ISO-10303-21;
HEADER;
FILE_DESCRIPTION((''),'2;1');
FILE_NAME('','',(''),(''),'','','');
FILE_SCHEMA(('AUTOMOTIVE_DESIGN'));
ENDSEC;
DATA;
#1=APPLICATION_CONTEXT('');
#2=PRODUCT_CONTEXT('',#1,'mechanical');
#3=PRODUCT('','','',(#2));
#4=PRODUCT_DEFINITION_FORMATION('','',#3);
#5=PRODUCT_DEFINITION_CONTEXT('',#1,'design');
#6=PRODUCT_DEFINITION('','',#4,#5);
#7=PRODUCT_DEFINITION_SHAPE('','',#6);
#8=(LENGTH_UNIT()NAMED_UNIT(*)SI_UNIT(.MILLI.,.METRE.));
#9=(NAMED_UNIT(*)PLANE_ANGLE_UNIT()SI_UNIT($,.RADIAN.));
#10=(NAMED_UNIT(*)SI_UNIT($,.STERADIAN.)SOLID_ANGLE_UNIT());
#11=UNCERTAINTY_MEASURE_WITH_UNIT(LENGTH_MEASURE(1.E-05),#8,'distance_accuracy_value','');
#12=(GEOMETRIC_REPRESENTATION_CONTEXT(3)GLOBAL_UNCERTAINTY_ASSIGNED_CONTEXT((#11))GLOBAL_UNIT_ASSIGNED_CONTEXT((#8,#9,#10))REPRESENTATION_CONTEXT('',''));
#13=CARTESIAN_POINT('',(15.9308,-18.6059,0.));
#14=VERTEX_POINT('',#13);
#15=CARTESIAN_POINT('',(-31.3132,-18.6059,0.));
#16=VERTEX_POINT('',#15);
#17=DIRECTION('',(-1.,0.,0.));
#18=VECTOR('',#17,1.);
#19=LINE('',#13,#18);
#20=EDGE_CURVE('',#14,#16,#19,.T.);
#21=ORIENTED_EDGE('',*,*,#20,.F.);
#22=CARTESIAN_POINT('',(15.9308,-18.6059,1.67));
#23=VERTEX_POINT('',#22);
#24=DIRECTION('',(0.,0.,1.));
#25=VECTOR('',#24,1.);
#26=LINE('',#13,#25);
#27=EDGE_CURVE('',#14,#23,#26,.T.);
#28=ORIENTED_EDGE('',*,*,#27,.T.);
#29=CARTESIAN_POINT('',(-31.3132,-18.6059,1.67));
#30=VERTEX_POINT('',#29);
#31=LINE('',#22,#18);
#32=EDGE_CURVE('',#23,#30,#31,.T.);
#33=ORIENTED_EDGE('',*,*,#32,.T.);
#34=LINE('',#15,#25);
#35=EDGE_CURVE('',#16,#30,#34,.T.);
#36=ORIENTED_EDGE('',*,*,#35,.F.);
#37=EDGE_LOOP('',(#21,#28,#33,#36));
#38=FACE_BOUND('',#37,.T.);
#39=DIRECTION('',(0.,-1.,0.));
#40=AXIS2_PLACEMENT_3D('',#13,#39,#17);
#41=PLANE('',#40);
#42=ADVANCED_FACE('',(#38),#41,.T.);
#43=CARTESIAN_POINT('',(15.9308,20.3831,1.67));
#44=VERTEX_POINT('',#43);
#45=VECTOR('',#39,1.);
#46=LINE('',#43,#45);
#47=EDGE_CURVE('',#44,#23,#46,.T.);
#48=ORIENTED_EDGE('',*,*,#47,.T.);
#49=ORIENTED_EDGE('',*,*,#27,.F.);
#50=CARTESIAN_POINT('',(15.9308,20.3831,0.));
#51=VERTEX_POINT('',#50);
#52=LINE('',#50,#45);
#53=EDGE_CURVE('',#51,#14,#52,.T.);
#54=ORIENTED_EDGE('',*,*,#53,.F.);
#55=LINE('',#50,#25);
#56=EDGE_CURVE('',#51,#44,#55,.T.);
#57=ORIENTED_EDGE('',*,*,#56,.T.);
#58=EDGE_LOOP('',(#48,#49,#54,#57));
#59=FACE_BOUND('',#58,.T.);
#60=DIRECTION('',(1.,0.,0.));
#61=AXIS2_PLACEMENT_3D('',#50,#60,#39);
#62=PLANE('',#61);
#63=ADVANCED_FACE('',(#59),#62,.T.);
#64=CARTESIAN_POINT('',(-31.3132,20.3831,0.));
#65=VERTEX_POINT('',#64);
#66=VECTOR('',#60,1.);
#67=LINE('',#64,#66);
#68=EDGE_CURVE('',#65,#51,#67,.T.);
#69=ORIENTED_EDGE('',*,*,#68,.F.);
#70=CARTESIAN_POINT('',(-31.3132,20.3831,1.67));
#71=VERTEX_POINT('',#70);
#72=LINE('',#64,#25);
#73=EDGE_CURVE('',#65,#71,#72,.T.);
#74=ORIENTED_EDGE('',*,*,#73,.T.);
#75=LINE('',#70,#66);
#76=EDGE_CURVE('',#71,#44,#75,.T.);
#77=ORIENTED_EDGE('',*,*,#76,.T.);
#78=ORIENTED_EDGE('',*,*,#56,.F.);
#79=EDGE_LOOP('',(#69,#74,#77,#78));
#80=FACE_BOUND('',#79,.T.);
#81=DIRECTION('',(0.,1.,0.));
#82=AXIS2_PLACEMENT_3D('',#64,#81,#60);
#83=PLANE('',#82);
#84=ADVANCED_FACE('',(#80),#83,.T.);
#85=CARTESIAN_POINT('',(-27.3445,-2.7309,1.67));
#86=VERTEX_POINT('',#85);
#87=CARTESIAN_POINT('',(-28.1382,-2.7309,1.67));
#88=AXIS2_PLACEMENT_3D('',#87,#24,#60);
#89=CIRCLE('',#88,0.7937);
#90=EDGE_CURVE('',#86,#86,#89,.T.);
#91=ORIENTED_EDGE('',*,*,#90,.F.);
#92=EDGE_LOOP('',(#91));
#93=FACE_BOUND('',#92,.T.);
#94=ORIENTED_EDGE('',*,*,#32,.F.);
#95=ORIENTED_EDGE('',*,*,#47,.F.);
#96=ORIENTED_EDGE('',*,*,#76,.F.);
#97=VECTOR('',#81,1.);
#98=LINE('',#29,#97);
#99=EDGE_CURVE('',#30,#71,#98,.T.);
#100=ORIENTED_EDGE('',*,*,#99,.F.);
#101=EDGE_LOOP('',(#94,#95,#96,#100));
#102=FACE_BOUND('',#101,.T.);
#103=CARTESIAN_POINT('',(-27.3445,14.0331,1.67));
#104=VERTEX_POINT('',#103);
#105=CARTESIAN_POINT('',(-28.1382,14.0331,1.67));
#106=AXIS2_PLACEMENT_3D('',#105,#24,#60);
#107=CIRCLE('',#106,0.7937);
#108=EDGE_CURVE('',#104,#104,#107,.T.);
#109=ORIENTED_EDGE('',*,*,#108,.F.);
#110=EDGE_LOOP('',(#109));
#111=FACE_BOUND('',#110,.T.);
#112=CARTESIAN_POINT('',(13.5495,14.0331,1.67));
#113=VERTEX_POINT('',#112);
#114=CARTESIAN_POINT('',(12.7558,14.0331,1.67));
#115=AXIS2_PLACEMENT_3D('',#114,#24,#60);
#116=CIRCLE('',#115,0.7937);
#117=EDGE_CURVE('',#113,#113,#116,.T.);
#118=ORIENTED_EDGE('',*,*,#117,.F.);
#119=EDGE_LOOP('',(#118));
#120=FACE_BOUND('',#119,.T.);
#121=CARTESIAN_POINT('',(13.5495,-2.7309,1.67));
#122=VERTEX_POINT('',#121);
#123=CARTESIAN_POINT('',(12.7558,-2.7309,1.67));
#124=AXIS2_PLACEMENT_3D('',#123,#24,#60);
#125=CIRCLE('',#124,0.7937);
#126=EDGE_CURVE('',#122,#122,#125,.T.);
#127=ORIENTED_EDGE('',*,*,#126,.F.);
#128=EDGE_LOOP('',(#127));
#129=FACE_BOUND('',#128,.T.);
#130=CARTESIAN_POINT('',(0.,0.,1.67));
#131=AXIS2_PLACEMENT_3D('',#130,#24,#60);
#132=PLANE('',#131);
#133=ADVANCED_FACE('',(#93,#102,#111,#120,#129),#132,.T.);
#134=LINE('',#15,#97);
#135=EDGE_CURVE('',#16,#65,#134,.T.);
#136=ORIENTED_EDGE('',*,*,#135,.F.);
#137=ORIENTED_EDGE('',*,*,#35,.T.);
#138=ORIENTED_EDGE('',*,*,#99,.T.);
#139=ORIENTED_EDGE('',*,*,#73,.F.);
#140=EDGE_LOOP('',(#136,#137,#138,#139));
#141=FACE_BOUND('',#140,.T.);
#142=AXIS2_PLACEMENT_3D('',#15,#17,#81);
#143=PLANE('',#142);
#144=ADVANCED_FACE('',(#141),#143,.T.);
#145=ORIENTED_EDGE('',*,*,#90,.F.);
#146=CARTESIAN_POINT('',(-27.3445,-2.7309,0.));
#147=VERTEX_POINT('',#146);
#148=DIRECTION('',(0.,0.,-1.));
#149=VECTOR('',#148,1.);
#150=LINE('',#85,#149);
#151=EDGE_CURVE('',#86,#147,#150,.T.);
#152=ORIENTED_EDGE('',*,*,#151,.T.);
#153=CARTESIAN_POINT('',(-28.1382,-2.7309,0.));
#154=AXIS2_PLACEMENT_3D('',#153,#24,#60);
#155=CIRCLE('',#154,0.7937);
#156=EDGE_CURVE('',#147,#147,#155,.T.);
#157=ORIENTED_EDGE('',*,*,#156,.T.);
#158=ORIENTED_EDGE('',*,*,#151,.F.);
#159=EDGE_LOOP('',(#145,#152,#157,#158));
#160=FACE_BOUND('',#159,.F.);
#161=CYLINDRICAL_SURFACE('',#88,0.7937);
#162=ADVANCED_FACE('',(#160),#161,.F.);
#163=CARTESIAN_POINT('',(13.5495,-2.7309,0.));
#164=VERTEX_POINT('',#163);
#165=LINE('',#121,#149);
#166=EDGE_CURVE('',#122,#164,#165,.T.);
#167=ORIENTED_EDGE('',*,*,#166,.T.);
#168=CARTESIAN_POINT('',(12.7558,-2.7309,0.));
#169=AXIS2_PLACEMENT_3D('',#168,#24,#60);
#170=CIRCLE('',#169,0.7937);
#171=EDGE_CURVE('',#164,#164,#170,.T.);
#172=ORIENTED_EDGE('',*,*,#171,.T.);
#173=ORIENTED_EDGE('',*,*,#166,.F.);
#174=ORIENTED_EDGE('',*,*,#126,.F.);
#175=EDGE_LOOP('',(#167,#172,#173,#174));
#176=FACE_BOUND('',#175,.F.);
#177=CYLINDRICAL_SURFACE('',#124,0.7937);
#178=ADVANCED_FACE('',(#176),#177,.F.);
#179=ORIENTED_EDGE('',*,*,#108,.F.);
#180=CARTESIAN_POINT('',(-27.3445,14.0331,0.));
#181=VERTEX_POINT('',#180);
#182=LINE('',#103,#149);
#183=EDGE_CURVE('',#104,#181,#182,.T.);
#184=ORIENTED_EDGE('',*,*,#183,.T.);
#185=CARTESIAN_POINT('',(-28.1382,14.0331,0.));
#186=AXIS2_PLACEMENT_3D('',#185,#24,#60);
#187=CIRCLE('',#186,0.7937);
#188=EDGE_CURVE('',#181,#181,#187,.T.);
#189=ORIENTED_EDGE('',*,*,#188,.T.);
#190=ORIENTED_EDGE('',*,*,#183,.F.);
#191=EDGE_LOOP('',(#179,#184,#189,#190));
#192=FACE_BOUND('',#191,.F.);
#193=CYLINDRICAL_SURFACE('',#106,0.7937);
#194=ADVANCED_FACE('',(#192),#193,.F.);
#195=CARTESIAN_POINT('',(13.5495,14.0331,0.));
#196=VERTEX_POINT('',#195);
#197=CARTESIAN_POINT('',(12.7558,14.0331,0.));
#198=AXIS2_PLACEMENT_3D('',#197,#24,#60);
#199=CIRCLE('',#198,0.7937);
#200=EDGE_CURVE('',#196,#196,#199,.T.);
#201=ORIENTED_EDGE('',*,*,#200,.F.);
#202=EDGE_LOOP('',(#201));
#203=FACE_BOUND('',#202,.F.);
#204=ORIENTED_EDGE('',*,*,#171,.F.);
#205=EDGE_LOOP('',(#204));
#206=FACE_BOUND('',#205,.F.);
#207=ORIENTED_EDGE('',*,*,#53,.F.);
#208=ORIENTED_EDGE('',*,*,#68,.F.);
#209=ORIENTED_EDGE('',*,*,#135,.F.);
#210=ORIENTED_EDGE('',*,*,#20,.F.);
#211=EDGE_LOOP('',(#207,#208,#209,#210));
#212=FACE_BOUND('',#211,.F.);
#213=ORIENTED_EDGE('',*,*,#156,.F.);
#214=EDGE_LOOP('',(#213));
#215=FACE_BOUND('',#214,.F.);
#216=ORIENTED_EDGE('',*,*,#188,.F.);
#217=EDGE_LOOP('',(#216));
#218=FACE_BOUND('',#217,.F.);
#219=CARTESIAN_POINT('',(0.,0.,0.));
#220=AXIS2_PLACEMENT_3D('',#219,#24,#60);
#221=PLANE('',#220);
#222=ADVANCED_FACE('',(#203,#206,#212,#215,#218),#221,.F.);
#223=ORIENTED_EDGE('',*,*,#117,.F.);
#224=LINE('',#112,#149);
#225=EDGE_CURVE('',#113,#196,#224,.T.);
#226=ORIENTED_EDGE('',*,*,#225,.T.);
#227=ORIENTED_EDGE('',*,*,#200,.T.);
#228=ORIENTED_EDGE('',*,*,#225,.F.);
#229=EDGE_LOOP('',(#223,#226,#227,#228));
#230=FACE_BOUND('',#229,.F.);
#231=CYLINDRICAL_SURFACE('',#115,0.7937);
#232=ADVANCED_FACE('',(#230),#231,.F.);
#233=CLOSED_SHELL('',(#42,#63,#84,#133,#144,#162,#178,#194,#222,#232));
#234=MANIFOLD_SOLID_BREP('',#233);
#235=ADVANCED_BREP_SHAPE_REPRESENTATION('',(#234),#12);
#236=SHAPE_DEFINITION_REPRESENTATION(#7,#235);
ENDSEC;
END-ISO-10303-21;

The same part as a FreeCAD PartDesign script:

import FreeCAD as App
import Part
import Sketcher
Q = App.Units.Quantity

doc = App.newDocument("Part")
body = doc.addObject("PartDesign::Body", "Body")

# Sketch on XY plane
sketch1 = doc.addObject("Sketcher::SketchObject", "Sketch")
body.addObject(sketch1)
sketch1.AttachmentSupport = (doc.XY_Plane, [""])
sketch1.MapMode = "FlatFace"
sketch1.addGeometry(Part.LineSegment(App.Vector(-31, -19, 0), App.Vector(16, -19, 0)), False)
sketch1.addGeometry(Part.LineSegment(App.Vector(16, -19, 0), App.Vector(16, 20, 0)), False)
sketch1.addGeometry(Part.LineSegment(App.Vector(16, 20, 0), App.Vector(-31, 20, 0)), False)
sketch1.addGeometry(Part.LineSegment(App.Vector(-31, 20, 0), App.Vector(-31, -19, 0)), False)
sketch1.addConstraint(Sketcher.Constraint("Coincident", 0, 2, 1, 1))
sketch1.addConstraint(Sketcher.Constraint("Coincident", 1, 2, 2, 1))
sketch1.addConstraint(Sketcher.Constraint("Coincident", 2, 2, 3, 1))
sketch1.addConstraint(Sketcher.Constraint("Coincident", 3, 2, 0, 1))
sketch1.addConstraint(Sketcher.Constraint("Horizontal", 0))
sketch1.addConstraint(Sketcher.Constraint("Vertical", 1))
sketch1.addConstraint(Sketcher.Constraint("Horizontal", 2))
sketch1.addConstraint(Sketcher.Constraint("Vertical", 3))
sketch1.addConstraint(Sketcher.Constraint("DistanceX", 0, 1, 0, 2, Q("1.86 in")))
sketch1.addConstraint(Sketcher.Constraint("DistanceY", 1, 1, 1, 2, Q("1.535 in")))
sketch1.addConstraint(Sketcher.Constraint("DistanceX", -1, 1, 0, 2, Q("0.6272 in")))
sketch1.addConstraint(Sketcher.Constraint("DistanceY", 0, 2, -1, 1, 18.606))
pad1 = doc.addObject("PartDesign::Pad", "Pad")
body.addObject(pad1)
pad1.Profile = sketch1
pad1.Length = 1.67

# Sketch on XY plane
sketch2 = doc.addObject("Sketcher::SketchObject", "Sketch001")
body.addObject(sketch2)
sketch2.AttachmentSupport = (doc.XY_Plane, [""])
sketch2.MapMode = "FlatFace"
sketch2.AttachmentOffset = App.Placement(App.Vector(0, 0, 1.67), App.Rotation())
sketch2.addGeometry(Part.Circle(App.Vector(-28.1, 14, 0), App.Vector(0, 0, 1), 0.8), False)
sketch2.addGeometry(Part.Circle(App.Vector(12.8, 14, 0), App.Vector(0, 0, 1), 0.8), False)
sketch2.addGeometry(Part.Circle(App.Vector(12.8, -2.7, 0), App.Vector(0, 0, 1), 0.8), False)
sketch2.addGeometry(Part.Circle(App.Vector(-28.1, -2.7, 0), App.Vector(0, 0, 1), 0.8), False)
sketch2.addConstraint(Sketcher.Constraint("Equal", 0, 1))
sketch2.addConstraint(Sketcher.Constraint("Equal", 1, 2))
sketch2.addConstraint(Sketcher.Constraint("Equal", 2, 3))
sketch2.addConstraint(Sketcher.Constraint("Horizontal", 0, 3, 1, 3))
sketch2.addConstraint(Sketcher.Constraint("Horizontal", 2, 3, 3, 3))
sketch2.addConstraint(Sketcher.Constraint("Vertical", 1, 3, 2, 3))
sketch2.addConstraint(Sketcher.Constraint("Vertical", 0, 3, 3, 3))
sketch2.addConstraint(Sketcher.Constraint("Diameter", 0, Q("0.0625 in")))
sketch2.addConstraint(Sketcher.Constraint("DistanceX", 0, 3, 1, 3, Q("1.61 in")))
sketch2.addConstraint(Sketcher.Constraint("DistanceY", 2, 3, 1, 3, Q("0.66 in")))
sketch2.addConstraint(Sketcher.Constraint("DistanceX", 0, 3, -1, 1, Q("1.1078 in")))
sketch2.addConstraint(Sketcher.Constraint("DistanceY", -1, 1, 0, 3, 14.033))
pocket1 = doc.addObject("PartDesign::Pocket", "Pocket")
body.addObject(pocket1)
pocket1.Profile = sketch2
pocket1.Length = 1.67

doc.recompute()
